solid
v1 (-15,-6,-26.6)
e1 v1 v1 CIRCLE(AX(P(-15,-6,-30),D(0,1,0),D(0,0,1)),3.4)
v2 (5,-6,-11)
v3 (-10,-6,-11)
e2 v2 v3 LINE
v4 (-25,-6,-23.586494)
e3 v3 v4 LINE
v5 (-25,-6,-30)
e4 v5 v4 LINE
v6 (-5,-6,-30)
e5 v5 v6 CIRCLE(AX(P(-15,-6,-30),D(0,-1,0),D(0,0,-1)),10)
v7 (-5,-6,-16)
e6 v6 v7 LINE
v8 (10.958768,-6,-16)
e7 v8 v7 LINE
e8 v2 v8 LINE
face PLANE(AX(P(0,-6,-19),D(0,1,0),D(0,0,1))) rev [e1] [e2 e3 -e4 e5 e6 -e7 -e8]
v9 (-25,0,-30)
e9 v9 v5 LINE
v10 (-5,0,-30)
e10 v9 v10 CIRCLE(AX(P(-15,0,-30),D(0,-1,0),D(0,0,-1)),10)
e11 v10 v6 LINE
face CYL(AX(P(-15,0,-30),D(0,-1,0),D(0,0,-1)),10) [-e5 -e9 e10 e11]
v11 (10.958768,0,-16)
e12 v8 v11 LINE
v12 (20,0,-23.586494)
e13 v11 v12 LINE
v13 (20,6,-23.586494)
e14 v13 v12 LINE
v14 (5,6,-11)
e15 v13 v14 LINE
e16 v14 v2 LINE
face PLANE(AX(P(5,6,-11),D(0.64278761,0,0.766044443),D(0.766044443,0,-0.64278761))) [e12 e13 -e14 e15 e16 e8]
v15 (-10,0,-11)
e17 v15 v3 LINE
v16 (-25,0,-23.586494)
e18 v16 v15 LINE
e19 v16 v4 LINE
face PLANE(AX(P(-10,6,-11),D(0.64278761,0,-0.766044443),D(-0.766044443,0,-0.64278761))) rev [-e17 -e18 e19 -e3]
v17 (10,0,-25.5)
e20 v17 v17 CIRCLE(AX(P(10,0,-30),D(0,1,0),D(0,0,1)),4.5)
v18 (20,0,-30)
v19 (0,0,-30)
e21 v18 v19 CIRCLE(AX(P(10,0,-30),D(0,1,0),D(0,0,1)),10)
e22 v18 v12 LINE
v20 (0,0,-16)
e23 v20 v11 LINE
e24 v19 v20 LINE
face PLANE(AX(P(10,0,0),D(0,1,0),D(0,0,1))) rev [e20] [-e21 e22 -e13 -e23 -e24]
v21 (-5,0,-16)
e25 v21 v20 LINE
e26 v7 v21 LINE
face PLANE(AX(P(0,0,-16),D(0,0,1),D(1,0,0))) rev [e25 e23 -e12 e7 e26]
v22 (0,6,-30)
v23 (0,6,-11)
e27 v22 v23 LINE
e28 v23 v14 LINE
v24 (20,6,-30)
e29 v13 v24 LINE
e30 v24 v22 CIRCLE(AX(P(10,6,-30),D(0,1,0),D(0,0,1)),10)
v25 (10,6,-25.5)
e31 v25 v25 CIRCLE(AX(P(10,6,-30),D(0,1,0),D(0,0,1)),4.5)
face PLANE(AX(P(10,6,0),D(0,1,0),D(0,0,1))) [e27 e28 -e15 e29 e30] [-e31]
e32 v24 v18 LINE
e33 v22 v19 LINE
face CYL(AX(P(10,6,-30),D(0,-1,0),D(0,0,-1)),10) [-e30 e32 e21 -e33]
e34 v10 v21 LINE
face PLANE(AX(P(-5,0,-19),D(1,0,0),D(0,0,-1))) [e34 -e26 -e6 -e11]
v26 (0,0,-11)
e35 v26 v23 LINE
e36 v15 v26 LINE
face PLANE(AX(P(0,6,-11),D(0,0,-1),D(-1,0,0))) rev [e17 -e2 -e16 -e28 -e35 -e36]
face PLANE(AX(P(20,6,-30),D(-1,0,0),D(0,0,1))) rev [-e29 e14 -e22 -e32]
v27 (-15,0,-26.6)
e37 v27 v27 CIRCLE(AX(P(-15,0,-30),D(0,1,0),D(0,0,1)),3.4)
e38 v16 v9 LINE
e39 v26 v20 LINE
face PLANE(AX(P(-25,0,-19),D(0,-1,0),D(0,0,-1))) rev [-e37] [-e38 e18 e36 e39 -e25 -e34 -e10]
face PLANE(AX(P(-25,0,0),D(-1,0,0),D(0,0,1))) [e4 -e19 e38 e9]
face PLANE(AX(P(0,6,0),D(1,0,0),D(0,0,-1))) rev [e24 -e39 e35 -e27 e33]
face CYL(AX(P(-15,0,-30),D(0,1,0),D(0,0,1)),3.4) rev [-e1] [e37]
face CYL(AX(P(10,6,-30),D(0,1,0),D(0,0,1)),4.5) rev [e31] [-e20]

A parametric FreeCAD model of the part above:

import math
import FreeCAD as App
import Part
import Sketcher

V = App.Vector
Q = App.Units.Quantity

doc = App.newDocument("Part")
params = doc.addObject("Spreadsheet::Sheet", "Params")
for row, (alias, value) in enumerate([
    ("sketch1_radius", "10 mm"),
    ("sketch1_height", "30 mm"),
    ("pad1_length", "6 mm"),
    ("sketch2_radius", "10 mm"),
    ("sketch2_height", "30 mm"),
    ("pad2_length", "12 mm"),
    ("sketch3_width", "6 mm"),
    ("sketch3_height", "21 mm"),
    ("sketch3_height2", "11 mm"),
    ("sketch3_height3", "29 mm"),
    ("sketch4_diameter", "9 mm"),
    ("hole_diameter", "9 mm"),
    ("sketch5_diameter", "6.8 mm"),
    ("hole2_diameter", "6.8 mm"),
    ("sketch7_width", "6 mm"),
    ("sketch7_height", "8 mm"),
    ("pad3_length", "25 mm"),
    ("sketch8_radius", "10 mm"),
    ("sketch8_height", "11 mm"),
    ("pad4_length", "6 mm"),
    ("sketch9_diameter", "6.8 mm"),
    ("hole3_diameter", "6.8 mm"),
    ("sketch10_width", "25 mm"),
    ("sketch10_height", "6 mm"),
    ("pocket3_length", "3 mm"),
    ("sketch11_width", "15 mm"),
    ("pocket4_length", "14 mm"),
], start=1):
    params.set(f"A{row}", alias)
    params.set(f"B{row}", "=" + value)
    params.setAlias(f"B{row}", alias)

body = doc.addObject("PartDesign::Body", "Body")

sketch1 = body.newObject("Sketcher::SketchObject", "Sketch")
sketch1.AttachmentSupport = (doc.getObject("XZ_Plane"), [""])
sketch1.MapMode = "FlatFace"
sketch1.addGeometry(Part.LineSegment(V(0, -30, 0), V(0, 0, 0)), False)
sketch1.addGeometry(Part.ArcOfCircle(Part.Circle(V(10, 0, 0), V(0, 0, 1), 10), math.radians(0), math.radians(180)), False)
sketch1.addGeometry(Part.LineSegment(V(20, 0, 0), V(20, -30, 0)), False)
sketch1.addGeometry(Part.ArcOfCircle(Part.Circle(V(10, -30, 0), V(0, 0, 1), 10), math.radians(180), math.radians(360)), False)
sketch1.addConstraint(Sketcher.Constraint("Tangent", 0, 2, 1, 2))
sketch1.addConstraint(Sketcher.Constraint("Tangent", 1, 1, 2, 1))
sketch1.addConstraint(Sketcher.Constraint("Tangent", 2, 2, 3, 2))
sketch1.addConstraint(Sketcher.Constraint("Tangent", 3, 1, 0, 1))
sketch1.addConstraint(Sketcher.Constraint("Vertical", 0))
sketch1.addConstraint(Sketcher.Constraint("Vertical", 2))
sketch1.addConstraint(Sketcher.Constraint("Coincident", 0, 2, -1, 1))
sketch1.addConstraint(Sketcher.Constraint("Radius", 1, 10.0))
sketch1.addConstraint(Sketcher.Constraint("DistanceY", 0, 1, 0, 2, 30.0))
sketch1.setExpression("Constraints[7]", "Params.sketch1_radius")
sketch1.setExpression("Constraints[8]", "Params.sketch1_height")
pad1 = body.newObject("PartDesign::Pad", "Pad")
pad1.Profile = sketch1
pad1.setExpression("Length", "Params.pad1_length")
pad1.Reversed = True

sketch2 = body.newObject("Sketcher::SketchObject", "Sketch001")
sketch2.AttachmentSupport = (doc.getObject("XZ_Plane"), [""])
sketch2.MapMode = "FlatFace"
sketch2.addGeometry(Part.LineSegment(V(0, -30, 0), V(20, -30, 0)), False)
sketch2.addGeometry(Part.LineSegment(V(20, -30, 0), V(20, 0, 0)), False)
sketch2.addGeometry(Part.ArcOfCircle(Part.Circle(V(10, 0, 0), V(0, 0, 1), 10), math.radians(0), math.radians(180)), False)
sketch2.addGeometry(Part.LineSegment(V(0, 0, 0), V(0, -30, 0)), False)
sketch2.addConstraint(Sketcher.Constraint("Coincident", 0, 2, 1, 1))
sketch2.addConstraint(Sketcher.Constraint("Tangent", 1, 2, 2, 1))
sketch2.addConstraint(Sketcher.Constraint("Tangent", 2, 2, 3, 1))
sketch2.addConstraint(Sketcher.Constraint("Coincident", 3, 2, 0, 1))
sketch2.addConstraint(Sketcher.Constraint("Horizontal", 0))
sketch2.addConstraint(Sketcher.Constraint("Vertical", 1))
sketch2.addConstraint(Sketcher.Constraint("Vertical", 3))
sketch2.addConstraint(Sketcher.Constraint("Coincident", 2, 2, -1, 1))
sketch2.addConstraint(Sketcher.Constraint("Radius", 2, 10.0))
sketch2.addConstraint(Sketcher.Constraint("DistanceY", 1, 1, 1, 2, 30.0))
sketch2.setExpression("Constraints[8]", "Params.sketch2_radius")
sketch2.setExpression("Constraints[9]", "Params.sketch2_height")
pad2 = body.newObject("PartDesign::Pad", "Pad001")
pad2.Profile = sketch2
pad2.setExpression("Length", "Params.pad2_length")

sketch3 = body.newObject("Sketcher::SketchObject", "Sketch002")
sketch3.AttachmentSupport = (doc.getObject("YZ_Plane"), [""])
sketch3.MapMode = "FlatFace"
sketch3.AttachmentOffset = App.Placement(V(0, 0, 20), App.Rotation())
sketch3.addGeometry(Part.LineSegment(V(6, 10, 0), V(0, 10, 0)), False)
sketch3.addGeometry(Part.LineSegment(V(0, 10, 0), V(0, -11, 0)), False)
sketch3.addGeometry(Part.LineSegment(V(0, -11, 0), V(6, -11, 0)), False)
sketch3.addGeometry(Part.LineSegment(V(6, -11, 0), V(6, 10, 0)), False)
sketch3.addGeometry(Part.LineSegment(V(0, -30, 0), V(0, -19, 0)), False)
sketch3.addGeometry(Part.LineSegment(V(0, -19, 0), V(-6, -19, 0)), False)
sketch3.addGeometry(Part.LineSegment(V(-6, -19, 0), V(-6, 10, 0)), False)
sketch3.addGeometry(Part.LineSegment(V(-6, 10, 0), V(-12, 10, 0)), False)
sketch3.addGeometry(Part.LineSegment(V(-12, 10, 0), V(-12, -30, 0)), False)
sketch3.addGeometry(Part.LineSegment(V(-12, -30, 0), V(0, -30, 0)), False)
sketch3.addConstraint(Sketcher.Constraint("Coincident", 0, 2, 1, 1))
sketch3.addConstraint(Sketcher.Constraint("Coincident", 1, 2, 2, 1))
sketch3.addConstraint(Sketcher.Constraint("Coincident", 2, 2, 3, 1))
sketch3.addConstraint(Sketcher.Constraint("Coincident", 3, 2, 0, 1))
sketch3.addConstraint(Sketcher.Constraint("Coincident", 4, 2, 5, 1))
sketch3.addConstraint(Sketcher.Constraint("Coincident", 5, 2, 6, 1))
sketch3.addConstraint(Sketcher.Constraint("Coincident", 6, 2, 7, 1))
sketch3.addConstraint(Sketcher.Constraint("Coincident", 7, 2, 8, 1))
sketch3.addConstraint(Sketcher.Constraint("Coincident", 8, 2, 9, 1))
sketch3.addConstraint(Sketcher.Constraint("Coincident", 9, 2, 4, 1))
sketch3.addConstraint(Sketcher.Constraint("Horizontal", 0))
sketch3.addConstraint(Sketcher.Constraint("Vertical", 1))
sketch3.addConstraint(Sketcher.Constraint("Horizontal", 2))
sketch3.addConstraint(Sketcher.Constraint("Vertical", 3))
sketch3.addConstraint(Sketcher.Constraint("Vertical", 4))
sketch3.addConstraint(Sketcher.Constraint("Horizontal", 5))
sketch3.addConstraint(Sketcher.Constraint("Vertical", 6))
sketch3.addConstraint(Sketcher.Constraint("Horizontal", 7))
sketch3.addConstraint(Sketcher.Constraint("Vertical", 8))
sketch3.addConstraint(Sketcher.Constraint("Horizontal", 9))
sketch3.addConstraint(Sketcher.Constraint("Symmetric", 3, 2, 6, 2, -2))
sketch3.addConstraint(Sketcher.Constraint("PointOnObject", 0, 2, -2))
sketch3.addConstraint(Sketcher.Constraint("PointOnObject", 4, 2, -2))
sketch3.addConstraint(Sketcher.Constraint("Equal", 5, 7))
sketch3.addConstraint(Sketcher.Constraint("DistanceX", 0, 2, 0, 1, 6.0))
sketch3.addConstraint(Sketcher.Constraint("DistanceY", 1, 2, 1, 1, 21.0))
sketch3.addConstraint(Sketcher.Constraint("DistanceY", 4, 1, 4, 2, 11.0))
sketch3.addConstraint(Sketcher.Constraint("DistanceY", 6, 1, 6, 2, 29.0))
sketch3.addConstraint(Sketcher.Constraint("DistanceY", -1, 1, 0, 2, 10.0))
sketch3.setExpression("Constraints[24]", "Params.sketch3_width")
sketch3.setExpression("Constraints[25]", "Params.sketch3_height")
sketch3.setExpression("Constraints[26]", "Params.sketch3_height2")
sketch3.setExpression("Constraints[27]", "Params.sketch3_height3")
pocket1 = body.newObject("PartDesign::Pocket", "Pocket")
pocket1.Profile = sketch3
pocket1.Type = "ThroughAll"

sketch4 = body.newObject("Sketcher::SketchObject", "Sketch003")
sketch4.AttachmentSupport = (doc.getObject("XZ_Plane"), [""])
sketch4.MapMode = "FlatFace"
sketch4.AttachmentOffset = App.Placement(V(0, 0, -6), App.Rotation())
sketch4.addGeometry(Part.Circle(V(10, -30, 0), V(0, 0, 1), 4.5), False)
sketch4.addConstraint(Sketcher.Constraint("Diameter", 0, 9.0))
sketch4.addConstraint(Sketcher.Constraint("DistanceX", -1, 1, 0, 3, 10.0))
sketch4.addConstraint(Sketcher.Constraint("DistanceY", 0, 3, -1, 1, 30.0))
sketch4.setExpression("Constraints[0]", "Params.sketch4_diameter")
doc.recompute()
hole = body.newObject("PartDesign::Hole", "Hole")
hole.Profile = sketch4
hole.ThreadType = "None"
hole.setExpression("Diameter", "Params.hole_diameter")
hole.DepthType = "ThroughAll"
hole.Reversed = True

sketch5 = body.newObject("Sketcher::SketchObject", "Sketch004")
sketch5.AttachmentSupport = (doc.getObject("XZ_Plane"), [""])
sketch5.MapMode = "FlatFace"
sketch5.addGeometry(Part.Circle(V(10, 0, 0), V(0, 0, 1), 3.4), False)
sketch5.addConstraint(Sketcher.Constraint("PointOnObject", 0, 3, -1))
sketch5.addConstraint(Sketcher.Constraint("Diameter", 0, 6.8))
sketch5.addConstraint(Sketcher.Constraint("DistanceX", -1, 1, 0, 3, 10.0))
sketch5.setExpression("Constraints[1]", "Params.sketch5_diameter")
doc.recompute()
hole2 = body.newObject("PartDesign::Hole", "Hole001")
hole2.Profile = sketch5
hole2.ThreadType = "None"
hole2.setExpression("Diameter", "Params.hole2_diameter")
hole2.DepthType = "ThroughAll"
hole2.Reversed = True

sketch6 = body.newObject("Sketcher::SketchObject", "Sketch005")
sketch6.AttachmentSupport = (doc.getObject("XY_Plane"), [""])
sketch6.MapMode = "FlatFace"
sketch6.AttachmentOffset = App.Placement(V(0, 0, -11), App.Rotation())
sketch6.addGeometry(Part.LineSegment(V(-6.919025, 7.314015, 0), V(-6.919025, -8.719348, 0)), False)
sketch6.addGeometry(Part.LineSegment(V(-6.919025, -8.719348, 0), V(24.309099, -8.719348, 0)), False)
sketch6.addGeometry(Part.LineSegment(V(24.309099, -8.719348, 0), V(24.309099, 7.314015, 0)), False)
sketch6.addGeometry(Part.LineSegment(V(24.309099, 7.314015, 0), V(-6.919025, 7.314015, 0)), False)
sketch6.addConstraint(Sketcher.Constraint("Coincident", 0, 2, 1, 1))
sketch6.addConstraint(Sketcher.Constraint("Coincident", 1, 2, 2, 1))
sketch6.addConstraint(Sketcher.Constraint("Coincident", 2, 2, 3, 1))
sketch6.addConstraint(Sketcher.Constraint("Coincident", 3, 2, 0, 1))
sketch6.addConstraint(Sketcher.Constraint("Vertical", 0))
sketch6.addConstraint(Sketcher.Constraint("Horizontal", 1))
sketch6.addConstraint(Sketcher.Constraint("Vertical", 2))
sketch6.addConstraint(Sketcher.Constraint("Horizontal", 3))
sketch6.addConstraint(Sketcher.Constraint("DistanceX", -1, 1, 1, 2, 24.309099))
sketch6.addConstraint(Sketcher.Constraint("DistanceX", 1, 1, 1, 2, 31.228124))
sketch6.addConstraint(Sketcher.Constraint("DistanceY", 0, 2, 0, 1, 16.033363))
sketch6.addConstraint(Sketcher.Constraint("DistanceY", 0, 2, -1, 1, 8.719348))
pocket2 = body.newObject("PartDesign::Pocket", "Pocket001")
pocket2.Profile = sketch6
pocket2.Type = "ThroughAll"
pocket2.Reversed = True

sketch7 = body.newObject("Sketcher::SketchObject", "Sketch006")
sketch7.AttachmentSupport = (doc.getObject("YZ_Plane"), [""])
sketch7.MapMode = "FlatFace"
sketch7.addGeometry(Part.LineSegment(V(0, -19, 0), V(-6, -19, 0)), False)
sketch7.addGeometry(Part.LineSegment(V(-6, -19, 0), V(-6, -11, 0)), False)
sketch7.addGeometry(Part.LineSegment(V(-6, -11, 0), V(0, -11, 0)), False)
sketch7.addGeometry(Part.LineSegment(V(0, -11, 0), V(0, -19, 0)), False)
sketch7.addConstraint(Sketcher.Constraint("Coincident", 0, 2, 1, 1))
sketch7.addConstraint(Sketcher.Constraint("Coincident", 1, 2, 2, 1))
sketch7.addConstraint(Sketcher.Constraint("Coincident", 2, 2, 3, 1))
sketch7.addConstraint(Sketcher.Constraint("Coincident", 3, 2, 0, 1))
sketch7.addConstraint(Sketcher.Constraint("Horizontal", 0))
sketch7.addConstraint(Sketcher.Constraint("Vertical", 1))
sketch7.addConstraint(Sketcher.Constraint("Horizontal", 2))
sketch7.addConstraint(Sketcher.Constraint("Vertical", 3))
sketch7.addConstraint(Sketcher.Constraint("PointOnObject", 2, 2, -2))
sketch7.addConstraint(Sketcher.Constraint("DistanceX", 0, 2, 0, 1, 6.0))
sketch7.addConstraint(Sketcher.Constraint("DistanceY", 1, 1, 1, 2, 8.0))
sketch7.addConstraint(Sketcher.Constraint("DistanceY", 0, 2, -1, 1, 19.0))
sketch7.setExpression("Constraints[9]", "Params.sketch7_width")
sketch7.setExpression("Constraints[10]", "Params.sketch7_height")
pad3 = body.newObject("PartDesign::Pad", "Pad002")
pad3.Profile = sketch7
pad3.setExpression("Length", "Params.pad3_length")
pad3.Reversed = True

sketch8 = body.newObject("Sketcher::SketchObject", "Sketch007")
sketch8.AttachmentSupport = (doc.getObject("XZ_Plane"), [""])
sketch8.MapMode = "FlatFace"
sketch8.AttachmentOffset = App.Placement(V(0, 0, 6), App.Rotation())
sketch8.addGeometry(Part.LineSegment(V(-25, -19, 0), V(-25, -30, 0)), False)
sketch8.addGeometry(Part.ArcOfCircle(Part.Circle(V(-15, -30, 0), V(0, 0, 1), 10), math.radians(180), math.radians(360)), False)
sketch8.addGeometry(Part.LineSegment(V(-5, -30, 0), V(-5, -19, 0)), False)
sketch8.addGeometry(Part.LineSegment(V(-5, -19, 0), V(-25, -19, 0)), False)
sketch8.addConstraint(Sketcher.Constraint("Tangent", 0, 2, 1, 1))
sketch8.addConstraint(Sketcher.Constraint("Tangent", 1, 2, 2, 1))
sketch8.addConstraint(Sketcher.Constraint("Coincident", 2, 2, 3, 1))
sketch8.addConstraint(Sketcher.Constraint("Coincident", 3, 2, 0, 1))
sketch8.addConstraint(Sketcher.Constraint("Vertical", 0))
sketch8.addConstraint(Sketcher.Constraint("Vertical", 2))
sketch8.addConstraint(Sketcher.Constraint("Horizontal", 3))
sketch8.addConstraint(Sketcher.Constraint("Radius", 1, 10.0))
sketch8.addConstraint(Sketcher.Constraint("DistanceY", 0, 2, 0, 1, 11.0))
sketch8.addConstraint(Sketcher.Constraint("DistanceX", 1, 3, -1, 1, 15.0))
sketch8.addConstraint(Sketcher.Constraint("DistanceY", 1, 3, -1, 1, 30.0))
sketch8.setExpression("Constraints[7]", "Params.sketch8_radius")
sketch8.setExpression("Constraints[8]", "Params.sketch8_height")
pad4 = body.newObject("PartDesign::Pad", "Pad003")
pad4.Profile = sketch8
pad4.setExpression("Length", "Params.pad4_length")
pad4.Reversed = True

sketch9 = body.newObject("Sketcher::SketchObject", "Sketch008")
sketch9.AttachmentSupport = (doc.getObject("XZ_Plane"), [""])
sketch9.MapMode = "FlatFace"
sketch9.addGeometry(Part.Circle(V(-15, -30, 0), V(0, 0, 1), 3.4), False)
sketch9.addConstraint(Sketcher.Constraint("Diameter", 0, 6.8))
sketch9.addConstraint(Sketcher.Constraint("DistanceX", 0, 3, -1, 1, 15.0))
sketch9.addConstraint(Sketcher.Constraint("DistanceY", 0, 3, -1, 1, 30.0))
sketch9.setExpression("Constraints[0]", "Params.sketch9_diameter")
doc.recompute()
hole3 = body.newObject("PartDesign::Hole", "Hole002")
hole3.Profile = sketch9
hole3.ThreadType = "None"
hole3.setExpression("Diameter", "Params.hole3_diameter")
hole3.DepthType = "ThroughAll"
hole3.Reversed = True

sketch10 = body.newObject("Sketcher::SketchObject", "Sketch009")
sketch10.AttachmentSupport = (doc.getObject("XY_Plane"), [""])
sketch10.MapMode = "FlatFace"
sketch10.AttachmentOffset = App.Placement(V(0, 0, -19), App.Rotation())
sketch10.addGeometry(Part.LineSegment(V(20, 0, 0), V(20, -6, 0)), False)
sketch10.addGeometry(Part.LineSegment(V(20, -6, 0), V(-5, -6, 0)), False)
sketch10.addGeometry(Part.LineSegment(V(-5, -6, 0), V(-5, 0, 0)), False)
sketch10.addGeometry(Part.LineSegment(V(-5, 0, 0), V(20, 0, 0)), False)
sketch10.addConstraint(Sketcher.Constraint("Coincident", 0, 2, 1, 1))
sketch10.addConstraint(Sketcher.Constraint("Coincident", 1, 2, 2, 1))
sketch10.addConstraint(Sketcher.Constraint("Coincident", 2, 2, 3, 1))
sketch10.addConstraint(Sketcher.Constraint("Coincident", 3, 2, 0, 1))
sketch10.addConstraint(Sketcher.Constraint("Vertical", 0))
sketch10.addConstraint(Sketcher.Constraint("Horizontal", 1))
sketch10.addConstraint(Sketcher.Constraint("Vertical", 2))
sketch10.addConstraint(Sketcher.Constraint("Horizontal", 3))
sketch10.addConstraint(Sketcher.Constraint("PointOnObject", 2, 2, -1))
sketch10.addConstraint(Sketcher.Constraint("DistanceX", 1, 2, 1, 1, 25.0))
sketch10.addConstraint(Sketcher.Constraint("DistanceY", 0, 2, 0, 1, 6.0))
sketch10.addConstraint(Sketcher.Constraint("DistanceX", -1, 1, 0, 2, 20.0))
sketch10.setExpression("Constraints[9]", "Params.sketch10_width")
sketch10.setExpression("Constraints[10]", "Params.sketch10_height")
pocket3 = body.newObject("PartDesign::Pocket", "Pocket002")
pocket3.Profile = sketch10
pocket3.setExpression("Length", "Params.pocket3_length")
pocket3.Reversed = True

sketch11 = body.newObject("Sketcher::SketchObject", "Sketch010")
sketch11.AttachmentSupport = (doc.getObject("XZ_Plane"), [""])
sketch11.MapMode = "FlatFace"
sketch11.AttachmentOffset = App.Placement(V(0, 0, -7), App.Rotation())
sketch11.addGeometry(Part.LineSegment(V(-10, -11, 0), V(-25, -11, 0)), False)
sketch11.addGeometry(Part.LineSegment(V(-25, -11, 0), V(-25, -23.586494, 0)), False)
sketch11.addGeometry(Part.LineSegment(V(-25, -23.586494, 0), V(-10, -11, 0)), False)
sketch11.addConstraint(Sketcher.Constraint("Coincident", 0, 2, 1, 1))
sketch11.addConstraint(Sketcher.Constraint("Coincident", 1, 2, 2, 1))
sketch11.addConstraint(Sketcher.Constraint("Coincident", 2, 2, 0, 1))
sketch11.addConstraint(Sketcher.Constraint("Horizontal", 0))
sketch11.addConstraint(Sketcher.Constraint("Vertical", 1))
sketch11.addConstraint(Sketcher.Constraint("DistanceX", 0, 2, 0, 1, 15.0))
sketch11.addConstraint(Sketcher.Constraint("Angle", 2, Q("40 deg")))
sketch11.addConstraint(Sketcher.Constraint("DistanceX", 0, 2, -1, 1, 25.0))
sketch11.addConstraint(Sketcher.Constraint("DistanceY", 0, 2, -1, 1, 11.0))
sketch11.setExpression("Constraints[5]", "Params.sketch11_width")
pocket4 = body.newObject("PartDesign::Pocket", "Pocket003")
pocket4.Profile = sketch11
pocket4.setExpression("Length", "Params.pocket4_length")
pocket4.Reversed = True
doc.recompute()

datumplane = body.newObject("PartDesign::Plane", "DatumPlane")
datumplane.AttachmentSupport = (doc.getObject("YZ_Plane"), [""])
datumplane.MapMode = "FlatFace"
datumplane.AttachmentOffset = App.Placement(V(0, 0, -2.5), App.Rotation())
mirrored = body.newObject("PartDesign::Mirrored", "Mirrored")
mirrored.Originals = [pocket4]
mirrored.MirrorPlane = (datumplane, [""])
body.Tip = mirrored

doc.recompute()
